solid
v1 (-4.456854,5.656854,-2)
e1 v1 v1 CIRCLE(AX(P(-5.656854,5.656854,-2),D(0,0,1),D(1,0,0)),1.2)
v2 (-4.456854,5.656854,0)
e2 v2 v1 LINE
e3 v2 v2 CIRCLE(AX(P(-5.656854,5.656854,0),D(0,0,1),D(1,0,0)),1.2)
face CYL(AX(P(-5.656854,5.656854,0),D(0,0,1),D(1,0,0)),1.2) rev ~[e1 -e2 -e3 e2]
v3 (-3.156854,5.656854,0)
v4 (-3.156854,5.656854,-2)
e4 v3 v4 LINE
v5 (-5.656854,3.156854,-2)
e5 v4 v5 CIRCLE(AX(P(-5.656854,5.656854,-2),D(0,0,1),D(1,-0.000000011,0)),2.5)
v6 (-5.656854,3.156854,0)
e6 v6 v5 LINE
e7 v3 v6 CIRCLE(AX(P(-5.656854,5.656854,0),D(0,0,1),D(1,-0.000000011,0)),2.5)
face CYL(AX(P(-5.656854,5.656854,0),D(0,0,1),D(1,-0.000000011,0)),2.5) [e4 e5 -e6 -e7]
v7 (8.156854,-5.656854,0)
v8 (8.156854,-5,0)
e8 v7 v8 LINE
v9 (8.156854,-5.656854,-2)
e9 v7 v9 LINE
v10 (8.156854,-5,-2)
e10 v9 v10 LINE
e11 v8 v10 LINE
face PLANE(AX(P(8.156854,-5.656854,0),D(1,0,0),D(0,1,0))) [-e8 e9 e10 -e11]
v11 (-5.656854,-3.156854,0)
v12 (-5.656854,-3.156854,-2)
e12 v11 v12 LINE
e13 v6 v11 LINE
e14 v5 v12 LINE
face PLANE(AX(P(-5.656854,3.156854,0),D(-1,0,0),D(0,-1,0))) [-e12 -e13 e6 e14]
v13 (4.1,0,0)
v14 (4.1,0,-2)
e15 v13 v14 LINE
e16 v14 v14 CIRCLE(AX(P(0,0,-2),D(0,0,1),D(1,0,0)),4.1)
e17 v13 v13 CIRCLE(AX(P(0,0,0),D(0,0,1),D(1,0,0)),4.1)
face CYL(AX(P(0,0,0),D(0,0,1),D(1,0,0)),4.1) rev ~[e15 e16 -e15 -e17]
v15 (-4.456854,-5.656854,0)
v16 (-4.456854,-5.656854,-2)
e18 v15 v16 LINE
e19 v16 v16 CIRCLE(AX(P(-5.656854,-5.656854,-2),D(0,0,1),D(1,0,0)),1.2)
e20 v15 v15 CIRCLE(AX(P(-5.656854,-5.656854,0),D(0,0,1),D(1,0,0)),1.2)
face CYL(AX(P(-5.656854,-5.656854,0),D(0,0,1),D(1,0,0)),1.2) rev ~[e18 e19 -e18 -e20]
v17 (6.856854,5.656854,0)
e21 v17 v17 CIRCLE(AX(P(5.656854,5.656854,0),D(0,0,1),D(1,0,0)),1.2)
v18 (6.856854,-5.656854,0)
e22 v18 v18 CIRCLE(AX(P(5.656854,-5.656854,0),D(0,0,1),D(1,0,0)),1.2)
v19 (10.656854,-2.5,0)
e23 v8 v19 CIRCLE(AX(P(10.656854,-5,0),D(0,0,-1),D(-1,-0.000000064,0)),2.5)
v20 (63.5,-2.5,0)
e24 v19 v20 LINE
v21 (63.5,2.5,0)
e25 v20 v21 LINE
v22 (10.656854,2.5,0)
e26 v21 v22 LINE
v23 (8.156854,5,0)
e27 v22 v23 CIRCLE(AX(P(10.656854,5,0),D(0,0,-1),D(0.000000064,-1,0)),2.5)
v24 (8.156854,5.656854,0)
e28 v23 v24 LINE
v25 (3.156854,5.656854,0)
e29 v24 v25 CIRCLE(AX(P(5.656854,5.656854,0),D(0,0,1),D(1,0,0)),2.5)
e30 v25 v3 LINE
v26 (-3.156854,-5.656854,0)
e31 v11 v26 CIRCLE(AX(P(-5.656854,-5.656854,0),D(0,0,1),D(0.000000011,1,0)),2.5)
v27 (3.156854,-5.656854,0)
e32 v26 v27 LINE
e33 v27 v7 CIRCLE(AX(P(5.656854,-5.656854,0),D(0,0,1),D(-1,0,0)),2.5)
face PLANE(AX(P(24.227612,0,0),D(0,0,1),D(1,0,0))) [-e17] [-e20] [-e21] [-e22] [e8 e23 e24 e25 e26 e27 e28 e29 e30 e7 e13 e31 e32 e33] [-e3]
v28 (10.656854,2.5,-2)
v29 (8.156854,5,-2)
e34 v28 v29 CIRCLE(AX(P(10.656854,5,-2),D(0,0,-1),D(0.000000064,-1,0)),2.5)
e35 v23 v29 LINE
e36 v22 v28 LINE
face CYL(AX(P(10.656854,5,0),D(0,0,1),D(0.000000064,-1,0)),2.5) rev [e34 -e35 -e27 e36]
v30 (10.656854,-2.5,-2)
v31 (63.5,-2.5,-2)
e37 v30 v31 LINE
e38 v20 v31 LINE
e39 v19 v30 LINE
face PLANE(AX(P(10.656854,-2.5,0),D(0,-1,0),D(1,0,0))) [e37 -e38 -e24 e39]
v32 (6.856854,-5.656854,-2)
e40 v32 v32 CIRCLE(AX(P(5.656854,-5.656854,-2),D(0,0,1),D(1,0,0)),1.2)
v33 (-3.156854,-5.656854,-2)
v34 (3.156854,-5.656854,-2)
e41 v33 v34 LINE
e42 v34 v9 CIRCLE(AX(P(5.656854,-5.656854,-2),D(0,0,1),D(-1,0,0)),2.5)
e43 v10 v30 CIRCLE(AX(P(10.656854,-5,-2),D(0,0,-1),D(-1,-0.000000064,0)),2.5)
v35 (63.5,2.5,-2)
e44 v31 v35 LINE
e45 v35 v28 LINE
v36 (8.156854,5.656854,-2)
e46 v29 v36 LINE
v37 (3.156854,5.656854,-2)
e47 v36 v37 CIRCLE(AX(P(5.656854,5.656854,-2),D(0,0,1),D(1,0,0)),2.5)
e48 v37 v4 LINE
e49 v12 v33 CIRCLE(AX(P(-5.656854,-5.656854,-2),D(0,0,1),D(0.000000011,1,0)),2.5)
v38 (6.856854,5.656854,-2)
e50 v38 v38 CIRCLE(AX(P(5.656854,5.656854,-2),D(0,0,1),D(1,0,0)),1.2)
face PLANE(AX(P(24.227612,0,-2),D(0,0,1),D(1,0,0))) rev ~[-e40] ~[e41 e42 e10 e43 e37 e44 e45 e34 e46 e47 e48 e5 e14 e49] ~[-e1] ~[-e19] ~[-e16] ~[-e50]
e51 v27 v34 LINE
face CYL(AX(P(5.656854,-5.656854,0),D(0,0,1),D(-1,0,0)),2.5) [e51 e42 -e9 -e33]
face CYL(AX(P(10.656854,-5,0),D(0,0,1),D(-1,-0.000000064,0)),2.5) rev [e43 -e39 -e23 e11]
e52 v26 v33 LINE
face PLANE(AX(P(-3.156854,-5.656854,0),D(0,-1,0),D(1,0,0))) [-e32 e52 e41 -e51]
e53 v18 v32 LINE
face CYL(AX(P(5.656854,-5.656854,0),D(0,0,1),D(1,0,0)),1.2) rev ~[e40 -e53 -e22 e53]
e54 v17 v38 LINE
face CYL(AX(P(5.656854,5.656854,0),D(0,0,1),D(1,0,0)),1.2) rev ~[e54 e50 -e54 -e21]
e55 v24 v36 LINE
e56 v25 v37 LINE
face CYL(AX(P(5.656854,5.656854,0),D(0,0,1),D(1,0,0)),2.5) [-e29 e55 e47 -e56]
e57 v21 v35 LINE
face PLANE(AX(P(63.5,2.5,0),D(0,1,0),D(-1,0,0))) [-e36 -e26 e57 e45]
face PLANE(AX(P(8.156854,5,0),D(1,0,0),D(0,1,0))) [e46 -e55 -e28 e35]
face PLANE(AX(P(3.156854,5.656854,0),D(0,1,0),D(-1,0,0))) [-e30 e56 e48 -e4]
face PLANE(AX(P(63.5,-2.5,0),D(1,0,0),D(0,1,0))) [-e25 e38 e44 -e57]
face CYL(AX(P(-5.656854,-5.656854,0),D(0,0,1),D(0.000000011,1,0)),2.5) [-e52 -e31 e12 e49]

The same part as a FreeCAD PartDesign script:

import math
import FreeCAD as App
import Part
import Sketcher

V = App.Vector
Q = App.Units.Quantity

doc = App.newDocument("Part")
params = doc.addObject("Spreadsheet::Sheet", "Params")
for row, (alias, value) in enumerate([
    ("sketch1_diameter", "2.4 mm"),
    ("sketch1_diameter2", "8.2 mm"),
    ("sketch1_radius", "2.5 mm"),
    ("sketch1_height", "5 mm"),
    ("pad1_length", "2 mm"),
], start=1):
    params.set(f"A{row}", alias)
    params.set(f"B{row}", "=" + value)
    params.setAlias(f"B{row}", alias)

body = doc.addObject("PartDesign::Body", "Body")

# Sketch on XY plane
sketch1 = body.newObject("Sketcher::SketchObject", "Sketch")
sketch1.AttachmentSupport = (doc.getObject("XY_Plane"), [""])
sketch1.MapMode = "FlatFace"
sketch1.addGeometry([
    Part.LineSegment(V(3.156854, 5.656854, 0), V(-3.156854, 5.656854, 0)),  # 0
    Part.ArcOfCircle(Part.Circle(V(-5.656854, 5.656854, 0), V(0, 0, 1), 2.5), math.radians(-0.000001), math.radians(270.000001)),  # 1
    Part.LineSegment(V(-5.656854, 3.156854, 0), V(-5.656854, -3.156854, 0)),  # 2
    Part.ArcOfCircle(Part.Circle(V(-5.656854, -5.656854, 0), V(0, 0, 1), 2.5), math.radians(89.999999), math.radians(360.000001)),  # 3
    Part.LineSegment(V(-3.156854, -5.656854, 0), V(3.156854, -5.656854, 0)),  # 4
    Part.ArcOfCircle(Part.Circle(V(5.656854, -5.656854, 0), V(0, 0, 1), 2.5), math.radians(180), math.radians(360)),  # 5
    Part.LineSegment(V(8.156854, -5.656854, 0), V(8.156854, -5, 0)),  # 6
    Part.ArcOfCircle(Part.Circle(V(10.656854, -5, 0), V(0, 0, 1), 2.5), math.radians(89.999996), math.radians(180.000004)),  # 7
    Part.LineSegment(V(10.656854, -2.5, 0), V(63.5, -2.5, 0)),  # 8
    Part.LineSegment(V(63.5, -2.5, 0), V(63.5, 2.5, 0)),  # 9
    Part.LineSegment(V(63.5, 2.5, 0), V(10.656854, 2.5, 0)),  # 10
    Part.ArcOfCircle(Part.Circle(V(10.656854, 5, 0), V(0, 0, 1), 2.5), math.radians(179.999996), math.radians(270.000004)),  # 11
    Part.LineSegment(V(8.156854, 5, 0), V(8.156854, 5.656854, 0)),  # 12
    Part.ArcOfCircle(Part.Circle(V(5.656854, 5.656854, 0), V(0, 0, 1), 2.5), math.radians(0), math.radians(180)),  # 13
    Part.Circle(V(-5.656854, -5.656854, 0), V(0, 0, 1), 1.2),  # 14
    Part.Circle(V(5.656854, -5.656854, 0), V(0, 0, 1), 1.2),  # 15
    Part.Circle(V(0, 0, 0), V(0, 0, 1), 4.1),  # 16
    Part.Circle(V(-5.656854, 5.656854, 0), V(0, 0, 1), 1.2),  # 17
    Part.Circle(V(5.656854, 5.656854, 0), V(0, 0, 1), 1.2),  # 18
], False)
sketch1.addConstraint([
    Sketcher.Constraint("Coincident", 0, 2, 1, 1),
    Sketcher.Constraint("Coincident", 1, 2, 2, 1),
    Sketcher.Constraint("Coincident", 2, 2, 3, 1),
    Sketcher.Constraint("Coincident", 3, 2, 4, 1),
    Sketcher.Constraint("Coincident", 4, 2, 5, 1),
    Sketcher.Constraint("Tangent", 5, 2, 6, 1),
    Sketcher.Constraint("Tangent", 6, 2, 7, 2),
    Sketcher.Constraint("Tangent", 7, 1, 8, 1),
    Sketcher.Constraint("Coincident", 8, 2, 9, 1),
    Sketcher.Constraint("Coincident", 9, 2, 10, 1),
    Sketcher.Constraint("Tangent", 10, 2, 11, 2),
    Sketcher.Constraint("Tangent", 11, 1, 12, 1),
    Sketcher.Constraint("Tangent", 12, 2, 13, 1),
    Sketcher.Constraint("Coincident", 13, 2, 0, 1),
    Sketcher.Constraint("Horizontal", 0),
    Sketcher.Constraint("Vertical", 2),
    Sketcher.Constraint("Horizontal", 4),
    Sketcher.Constraint("Vertical", 6),
    Sketcher.Constraint("Horizontal", 8),
    Sketcher.Constraint("Vertical", 9),
    Sketcher.Constraint("Horizontal", 10),
    Sketcher.Constraint("Vertical", 12),
    Sketcher.Constraint("Coincident", 16, 3, -1, 1),
    Sketcher.Constraint("Coincident", 14, 3, 3, 3),
    Sketcher.Constraint("Coincident", 15, 3, 5, 3),
    Sketcher.Constraint("Coincident", 17, 3, 1, 3),
    Sketcher.Constraint("Coincident", 18, 3, 13, 3),
    Sketcher.Constraint("Equal", 1, 3),
    Sketcher.Constraint("Equal", 3, 5),
    Sketcher.Constraint("Equal", 5, 7),
    Sketcher.Constraint("Equal", 7, 11),
    Sketcher.Constraint("Equal", 11, 13),
    Sketcher.Constraint("Equal", 14, 15),
    Sketcher.Constraint("Equal", 15, 17),
    Sketcher.Constraint("Equal", 17, 18),
    Sketcher.Constraint("Symmetric", 1, 3, 5, 3, -1, 1),
    Sketcher.Constraint("Symmetric", 3, 3, 13, 3, -1, 1),
    Sketcher.Constraint("Symmetric", 3, 3, 5, 3, -2),
    Sketcher.Constraint("Horizontal", 18, 3, 0, 2),
    Sketcher.Constraint("Horizontal", 15, 3, 3, 2),
    Sketcher.Constraint("Vertical", 17, 3, 1, 2),
    Sketcher.Constraint("Equal", 4, 2),
    Sketcher.Constraint("Equal", 6, 12),
    Sketcher.Constraint("Diameter", 14, Q("2.4 mm")),
    Sketcher.Constraint("Diameter", 16, Q("8.2 mm")),
    Sketcher.Constraint("Radius", 1, Q("2.5 mm")),
    Sketcher.Constraint("DistanceY", 9, 1, 9, 2, Q("5 mm")),
    Sketcher.Constraint("DistanceX", -1, 1, 8, 2, Q("63.5 mm")),
    Sketcher.Constraint("DistanceX", 0, 2, 0, 1, Q("6.313708 mm")),
])
sketch1.setExpression("Constraints[43]", "Params.sketch1_diameter")
sketch1.setExpression("Constraints[44]", "Params.sketch1_diameter2")
sketch1.setExpression("Constraints[45]", "Params.sketch1_radius")
sketch1.setExpression("Constraints[46]", "Params.sketch1_height")
pad1 = body.newObject("PartDesign::Pad", "Pad")
pad1.Profile = sketch1
pad1.setExpression("Length", "Params.pad1_length")
pad1.Reversed = True

doc.recompute()
